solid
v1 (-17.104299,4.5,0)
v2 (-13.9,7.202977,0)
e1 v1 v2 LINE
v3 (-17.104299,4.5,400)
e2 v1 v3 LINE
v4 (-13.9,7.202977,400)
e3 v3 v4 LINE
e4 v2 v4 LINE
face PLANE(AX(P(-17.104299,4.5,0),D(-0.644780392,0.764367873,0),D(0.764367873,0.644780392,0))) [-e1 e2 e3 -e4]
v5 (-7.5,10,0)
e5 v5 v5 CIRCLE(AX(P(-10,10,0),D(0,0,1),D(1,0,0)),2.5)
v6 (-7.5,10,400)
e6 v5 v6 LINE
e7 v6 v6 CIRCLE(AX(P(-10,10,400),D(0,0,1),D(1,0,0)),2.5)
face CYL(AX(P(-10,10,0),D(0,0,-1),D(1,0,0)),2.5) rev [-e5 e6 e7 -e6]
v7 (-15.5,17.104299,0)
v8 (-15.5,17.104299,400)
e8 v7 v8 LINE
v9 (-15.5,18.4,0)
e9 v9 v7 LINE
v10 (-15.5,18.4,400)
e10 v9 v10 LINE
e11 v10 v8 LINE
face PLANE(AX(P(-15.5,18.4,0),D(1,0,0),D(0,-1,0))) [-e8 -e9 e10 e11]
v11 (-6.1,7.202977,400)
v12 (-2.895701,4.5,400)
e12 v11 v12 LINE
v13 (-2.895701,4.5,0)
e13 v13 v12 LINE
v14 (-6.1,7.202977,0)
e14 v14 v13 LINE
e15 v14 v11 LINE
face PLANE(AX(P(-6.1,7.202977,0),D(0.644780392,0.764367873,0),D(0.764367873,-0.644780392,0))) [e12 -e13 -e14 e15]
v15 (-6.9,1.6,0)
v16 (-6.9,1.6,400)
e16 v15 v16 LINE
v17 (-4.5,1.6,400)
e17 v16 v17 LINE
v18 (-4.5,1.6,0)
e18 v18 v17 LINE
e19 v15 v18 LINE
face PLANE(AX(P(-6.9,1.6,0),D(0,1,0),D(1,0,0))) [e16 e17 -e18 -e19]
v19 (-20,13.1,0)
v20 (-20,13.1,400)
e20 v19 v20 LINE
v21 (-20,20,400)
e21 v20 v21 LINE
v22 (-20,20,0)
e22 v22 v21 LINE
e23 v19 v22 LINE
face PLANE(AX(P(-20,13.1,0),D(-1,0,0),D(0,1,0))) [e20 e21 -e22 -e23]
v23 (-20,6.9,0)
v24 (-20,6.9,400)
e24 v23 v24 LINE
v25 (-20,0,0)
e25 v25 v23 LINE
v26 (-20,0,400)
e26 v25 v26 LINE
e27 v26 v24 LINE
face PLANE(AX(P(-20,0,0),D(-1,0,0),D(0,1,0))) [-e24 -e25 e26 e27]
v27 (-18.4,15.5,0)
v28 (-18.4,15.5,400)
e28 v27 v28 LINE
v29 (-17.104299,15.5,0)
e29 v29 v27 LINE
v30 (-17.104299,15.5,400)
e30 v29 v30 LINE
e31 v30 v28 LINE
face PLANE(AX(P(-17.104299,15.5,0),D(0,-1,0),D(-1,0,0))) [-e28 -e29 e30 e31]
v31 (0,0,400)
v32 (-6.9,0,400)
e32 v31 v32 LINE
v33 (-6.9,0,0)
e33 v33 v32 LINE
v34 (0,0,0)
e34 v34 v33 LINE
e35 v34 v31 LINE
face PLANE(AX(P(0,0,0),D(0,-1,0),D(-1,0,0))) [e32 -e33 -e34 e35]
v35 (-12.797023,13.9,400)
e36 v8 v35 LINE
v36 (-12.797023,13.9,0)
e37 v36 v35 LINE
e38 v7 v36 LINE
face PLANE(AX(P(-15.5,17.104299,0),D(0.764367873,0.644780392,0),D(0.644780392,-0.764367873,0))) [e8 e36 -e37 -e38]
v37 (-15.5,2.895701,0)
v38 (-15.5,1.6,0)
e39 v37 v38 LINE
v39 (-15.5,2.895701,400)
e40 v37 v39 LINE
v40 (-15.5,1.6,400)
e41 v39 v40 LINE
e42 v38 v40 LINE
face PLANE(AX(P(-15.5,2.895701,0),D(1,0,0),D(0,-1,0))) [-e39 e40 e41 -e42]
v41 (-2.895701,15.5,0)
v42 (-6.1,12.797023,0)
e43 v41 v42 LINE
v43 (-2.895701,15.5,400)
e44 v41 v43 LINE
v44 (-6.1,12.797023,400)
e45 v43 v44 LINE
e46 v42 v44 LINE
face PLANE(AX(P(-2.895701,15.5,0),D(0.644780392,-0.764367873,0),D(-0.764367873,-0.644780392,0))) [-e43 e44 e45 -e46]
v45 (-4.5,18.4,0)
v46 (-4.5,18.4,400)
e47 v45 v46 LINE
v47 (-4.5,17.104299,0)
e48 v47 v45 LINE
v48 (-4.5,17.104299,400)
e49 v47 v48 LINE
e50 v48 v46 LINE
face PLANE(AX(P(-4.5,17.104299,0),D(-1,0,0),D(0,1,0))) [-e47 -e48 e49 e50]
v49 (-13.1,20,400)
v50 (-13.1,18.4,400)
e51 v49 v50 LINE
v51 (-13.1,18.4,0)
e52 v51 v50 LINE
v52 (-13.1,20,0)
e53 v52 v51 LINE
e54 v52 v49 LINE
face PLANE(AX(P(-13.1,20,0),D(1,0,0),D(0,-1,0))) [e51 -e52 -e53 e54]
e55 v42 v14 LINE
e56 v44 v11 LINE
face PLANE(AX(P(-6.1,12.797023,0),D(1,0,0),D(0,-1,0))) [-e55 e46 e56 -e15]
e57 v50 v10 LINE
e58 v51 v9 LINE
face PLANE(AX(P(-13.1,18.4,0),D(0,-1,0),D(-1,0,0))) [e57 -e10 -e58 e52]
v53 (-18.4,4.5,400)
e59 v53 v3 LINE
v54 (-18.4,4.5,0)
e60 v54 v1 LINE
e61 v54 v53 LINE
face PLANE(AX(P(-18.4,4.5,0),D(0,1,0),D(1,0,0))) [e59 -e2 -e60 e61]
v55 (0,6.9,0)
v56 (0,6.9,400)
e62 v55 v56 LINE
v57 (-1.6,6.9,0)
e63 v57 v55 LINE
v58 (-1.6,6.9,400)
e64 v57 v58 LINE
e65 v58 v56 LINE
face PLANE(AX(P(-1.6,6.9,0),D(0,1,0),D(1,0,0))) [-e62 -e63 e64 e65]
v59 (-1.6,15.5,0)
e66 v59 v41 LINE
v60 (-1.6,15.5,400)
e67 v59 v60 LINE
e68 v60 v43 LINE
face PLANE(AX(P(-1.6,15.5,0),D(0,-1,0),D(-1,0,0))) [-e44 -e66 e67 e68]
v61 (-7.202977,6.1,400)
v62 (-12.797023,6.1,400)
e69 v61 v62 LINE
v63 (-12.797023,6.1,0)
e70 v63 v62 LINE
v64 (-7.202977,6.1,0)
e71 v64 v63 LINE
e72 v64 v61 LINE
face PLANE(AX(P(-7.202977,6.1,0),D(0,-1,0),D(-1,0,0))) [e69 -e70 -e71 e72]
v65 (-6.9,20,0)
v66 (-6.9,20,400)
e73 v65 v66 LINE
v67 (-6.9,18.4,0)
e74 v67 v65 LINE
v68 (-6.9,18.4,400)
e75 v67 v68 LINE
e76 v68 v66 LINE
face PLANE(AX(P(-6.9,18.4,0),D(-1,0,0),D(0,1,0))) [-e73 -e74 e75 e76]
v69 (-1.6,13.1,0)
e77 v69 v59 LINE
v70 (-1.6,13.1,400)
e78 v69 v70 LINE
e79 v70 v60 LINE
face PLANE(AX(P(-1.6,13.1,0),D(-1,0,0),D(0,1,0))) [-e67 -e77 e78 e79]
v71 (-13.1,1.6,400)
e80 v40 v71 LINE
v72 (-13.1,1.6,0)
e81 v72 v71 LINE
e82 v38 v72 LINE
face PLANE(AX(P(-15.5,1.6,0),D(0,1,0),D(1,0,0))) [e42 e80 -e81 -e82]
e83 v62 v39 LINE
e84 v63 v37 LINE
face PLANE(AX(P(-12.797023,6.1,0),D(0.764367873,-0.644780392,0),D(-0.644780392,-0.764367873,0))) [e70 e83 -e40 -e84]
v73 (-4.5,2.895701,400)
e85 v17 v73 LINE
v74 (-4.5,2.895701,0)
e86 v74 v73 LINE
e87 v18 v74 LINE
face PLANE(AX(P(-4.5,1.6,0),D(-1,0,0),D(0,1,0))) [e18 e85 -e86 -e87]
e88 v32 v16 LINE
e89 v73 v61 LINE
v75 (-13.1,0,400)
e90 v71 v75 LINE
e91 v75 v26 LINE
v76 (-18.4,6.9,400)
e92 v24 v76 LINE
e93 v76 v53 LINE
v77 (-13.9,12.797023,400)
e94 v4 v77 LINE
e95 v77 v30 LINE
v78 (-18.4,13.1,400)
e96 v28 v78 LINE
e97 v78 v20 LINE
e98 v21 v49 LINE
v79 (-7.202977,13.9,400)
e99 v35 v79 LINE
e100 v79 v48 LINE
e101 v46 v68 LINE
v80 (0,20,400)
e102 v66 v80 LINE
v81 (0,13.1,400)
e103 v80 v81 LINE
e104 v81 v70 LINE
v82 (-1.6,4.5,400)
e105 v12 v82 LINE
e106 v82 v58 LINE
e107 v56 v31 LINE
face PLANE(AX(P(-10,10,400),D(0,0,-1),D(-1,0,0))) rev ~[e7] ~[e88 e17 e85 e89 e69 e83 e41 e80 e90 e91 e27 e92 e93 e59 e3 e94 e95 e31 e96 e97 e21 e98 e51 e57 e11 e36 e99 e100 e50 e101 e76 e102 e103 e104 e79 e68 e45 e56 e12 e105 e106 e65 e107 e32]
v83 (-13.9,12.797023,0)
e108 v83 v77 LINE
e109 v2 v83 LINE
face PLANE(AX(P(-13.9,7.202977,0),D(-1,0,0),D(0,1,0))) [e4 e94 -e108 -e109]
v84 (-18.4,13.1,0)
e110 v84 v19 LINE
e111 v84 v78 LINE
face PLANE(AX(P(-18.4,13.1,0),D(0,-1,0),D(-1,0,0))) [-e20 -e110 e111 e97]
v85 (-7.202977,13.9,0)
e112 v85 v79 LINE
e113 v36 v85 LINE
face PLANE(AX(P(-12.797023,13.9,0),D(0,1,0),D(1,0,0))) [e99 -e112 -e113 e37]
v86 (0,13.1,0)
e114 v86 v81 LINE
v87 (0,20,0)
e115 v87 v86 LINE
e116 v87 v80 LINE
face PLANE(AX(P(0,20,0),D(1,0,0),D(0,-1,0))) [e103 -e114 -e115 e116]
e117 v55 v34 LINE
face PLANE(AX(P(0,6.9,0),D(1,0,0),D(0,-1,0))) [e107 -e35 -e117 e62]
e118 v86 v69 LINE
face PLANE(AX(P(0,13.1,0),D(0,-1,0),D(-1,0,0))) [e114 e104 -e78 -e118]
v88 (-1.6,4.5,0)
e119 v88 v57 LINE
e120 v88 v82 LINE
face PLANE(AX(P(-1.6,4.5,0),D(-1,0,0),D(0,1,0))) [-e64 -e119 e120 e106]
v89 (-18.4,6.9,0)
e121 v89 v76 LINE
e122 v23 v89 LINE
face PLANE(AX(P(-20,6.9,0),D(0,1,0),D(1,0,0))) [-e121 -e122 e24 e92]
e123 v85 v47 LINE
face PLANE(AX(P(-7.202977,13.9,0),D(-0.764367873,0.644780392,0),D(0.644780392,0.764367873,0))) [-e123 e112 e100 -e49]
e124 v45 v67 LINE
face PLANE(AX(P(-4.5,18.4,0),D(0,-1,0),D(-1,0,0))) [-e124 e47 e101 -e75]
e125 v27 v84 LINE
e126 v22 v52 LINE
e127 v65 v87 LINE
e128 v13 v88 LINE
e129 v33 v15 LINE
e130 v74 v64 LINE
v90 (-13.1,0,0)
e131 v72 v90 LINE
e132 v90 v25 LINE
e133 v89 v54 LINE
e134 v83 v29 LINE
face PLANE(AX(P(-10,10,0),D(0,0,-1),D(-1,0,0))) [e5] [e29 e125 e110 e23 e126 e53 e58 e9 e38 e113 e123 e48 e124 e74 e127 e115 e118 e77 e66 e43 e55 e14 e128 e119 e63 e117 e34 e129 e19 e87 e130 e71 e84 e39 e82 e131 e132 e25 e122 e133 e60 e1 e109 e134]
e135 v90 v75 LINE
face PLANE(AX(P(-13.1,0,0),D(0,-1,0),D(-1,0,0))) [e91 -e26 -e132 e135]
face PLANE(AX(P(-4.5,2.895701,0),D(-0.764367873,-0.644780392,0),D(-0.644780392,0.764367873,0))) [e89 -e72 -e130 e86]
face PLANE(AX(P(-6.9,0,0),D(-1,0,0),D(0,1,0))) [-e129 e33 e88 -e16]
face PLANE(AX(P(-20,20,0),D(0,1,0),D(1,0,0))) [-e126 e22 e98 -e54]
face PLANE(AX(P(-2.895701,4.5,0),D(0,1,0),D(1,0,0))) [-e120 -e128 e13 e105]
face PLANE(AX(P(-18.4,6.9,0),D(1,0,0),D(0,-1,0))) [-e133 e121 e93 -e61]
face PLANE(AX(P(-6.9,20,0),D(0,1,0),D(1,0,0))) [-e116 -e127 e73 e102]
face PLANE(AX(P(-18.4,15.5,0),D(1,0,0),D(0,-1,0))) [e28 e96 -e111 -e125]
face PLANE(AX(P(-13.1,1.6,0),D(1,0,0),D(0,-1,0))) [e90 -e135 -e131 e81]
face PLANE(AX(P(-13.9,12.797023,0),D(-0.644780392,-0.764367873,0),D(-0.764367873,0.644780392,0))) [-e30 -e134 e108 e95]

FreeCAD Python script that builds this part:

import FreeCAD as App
import Part
import Sketcher
Q = App.Units.Quantity


def add_polygon(sketch, points):
    """Adds a closed chain of lines whose ends are joined by coincident constraints."""
    first, n = sketch.GeometryCount, len(points)
    for a, b in zip(points, points[1:] + points[:1]):
        sketch.addGeometry(Part.LineSegment(App.Vector(*a, 0), App.Vector(*b, 0)), False)
    for i in range(n):
        sketch.addConstraint(Sketcher.Constraint("Coincident", first + i, 2, first + (i + 1) % n, 1))

doc = App.newDocument("Part")
params = doc.addObject("Spreadsheet::Sheet", "Params")
for row, (alias, value) in enumerate([
    ("sketch1_diameter", "5 mm"),
    ("sketch1_width", "6.9 mm"),
    ("sketch1_width2", "1.6 mm"),
    ("sketch1_width3", "2.4 mm"),
    ("pad1_length", "400 mm"),
], start=1):
    params.set(f"A{row}", alias)
    params.set(f"B{row}", "=" + value)
    params.setAlias(f"B{row}", alias)

body = doc.addObject("PartDesign::Body", "Body")

sketch1 = doc.addObject("Sketcher::SketchObject", "Sketch")
body.addObject(sketch1)
sketch1.AttachmentSupport = (doc.XY_Plane, [""])
sketch1.MapMode = "FlatFace"
add_polygon(sketch1, [(-13.1, 20), (-20, 20), (-20, 13.1), (-18.4, 13.1), (-18.4, 15.5), (-17.104299, 15.5), (-13.9, 12.797023), (-13.9, 7.202977), (-17.104299, 4.5), (-18.4, 4.5), (-18.4, 6.9), (-20, 6.9), (-20, 0), (-13.1, 0), (-13.1, 1.6), (-15.5, 1.6), (-15.5, 2.895701), (-12.797023, 6.1), (-7.202977, 6.1), (-4.5, 2.895701), (-4.5, 1.6), (-6.9, 1.6), (-6.9, 0), (0, 0), (0, 6.9), (-1.6, 6.9), (-1.6, 4.5), (-2.895701, 4.5), (-6.1, 7.202977), (-6.1, 12.797023), (-2.895701, 15.5), (-1.6, 15.5), (-1.6, 13.1), (0, 13.1), (0, 20), (-6.9, 20), (-6.9, 18.4), (-4.5, 18.4), (-4.5, 17.104299), (-7.202977, 13.9), (-12.797023, 13.9), (-15.5, 17.104299), (-15.5, 18.4), (-13.1, 18.4)])
sketch1.addGeometry(Part.Circle(App.Vector(-10, 10, 0), App.Vector(0, 0, 1), 2.5), False)
sketch1.addConstraint([
    Sketcher.Constraint("Horizontal", 0),
    Sketcher.Constraint("Vertical", 1),
    Sketcher.Constraint("Horizontal", 2),
    Sketcher.Constraint("Vertical", 3),
    Sketcher.Constraint("Horizontal", 4),
    Sketcher.Constraint("Vertical", 6),
    Sketcher.Constraint("Horizontal", 8),
    Sketcher.Constraint("Vertical", 9),
    Sketcher.Constraint("Horizontal", 10),
    Sketcher.Constraint("Vertical", 11),
    Sketcher.Constraint("Horizontal", 12),
    Sketcher.Constraint("Vertical", 13),
    Sketcher.Constraint("Horizontal", 14),
    Sketcher.Constraint("Vertical", 15),
    Sketcher.Constraint("Horizontal", 17),
    Sketcher.Constraint("Vertical", 19),
    Sketcher.Constraint("Horizontal", 20),
    Sketcher.Constraint("Vertical", 21),
    Sketcher.Constraint("Horizontal", 22),
    Sketcher.Constraint("Vertical", 23),
    Sketcher.Constraint("Horizontal", 24),
    Sketcher.Constraint("Vertical", 25),
    Sketcher.Constraint("Horizontal", 26),
    Sketcher.Constraint("Vertical", 28),
    Sketcher.Constraint("Horizontal", 30),
    Sketcher.Constraint("Vertical", 31),
    Sketcher.Constraint("Horizontal", 32),
    Sketcher.Constraint("Vertical", 33),
    Sketcher.Constraint("Horizontal", 34),
    Sketcher.Constraint("Vertical", 35),
    Sketcher.Constraint("Horizontal", 36),
    Sketcher.Constraint("Vertical", 37),
    Sketcher.Constraint("Horizontal", 39),
    Sketcher.Constraint("Vertical", 41),
    Sketcher.Constraint("Horizontal", 42),
    Sketcher.Constraint("Vertical", 43),
    Sketcher.Constraint("Coincident", 22, 2, -1, 1),
    Sketcher.Constraint("PointOnObject", 11, 2, -1),
    Sketcher.Constraint("PointOnObject", 32, 2, -2),
    Sketcher.Constraint("Perpendicular", 5, 16),
    Sketcher.Constraint("Perpendicular", 7, 18),
    Sketcher.Constraint("Perpendicular", 16, 27),
    Sketcher.Constraint("Perpendicular", 18, 29),
    Sketcher.Constraint("Perpendicular", 27, 38),
    Sketcher.Constraint("Perpendicular", 29, 40),
    Sketcher.Constraint("Horizontal", 15, 2, 18, 2),
    Sketcher.Constraint("Horizontal", 14, 2, 19, 2),
    Sketcher.Constraint("Horizontal", 10, 2, 23, 2),
    Sketcher.Constraint("Horizontal", 8, 2, 25, 2),
    Sketcher.Constraint("Horizontal", 6, 2, 27, 2),
    Sketcher.Constraint("Horizontal", 5, 2, 28, 2),
    Sketcher.Constraint("Horizontal", 4, 2, 29, 2),
    Sketcher.Constraint("Horizontal", 2, 2, 31, 2),
    Sketcher.Constraint("Horizontal", 0, 2, 33, 2),
    Sketcher.Constraint("Horizontal", 37, 2, 40, 2),
    Sketcher.Constraint("Horizontal", 36, 2, 41, 2),
    Sketcher.Constraint("Vertical", 4, 2, 7, 2),
    Sketcher.Constraint("Vertical", 3, 2, 8, 2),
    Sketcher.Constraint("Vertical", 1, 2, 10, 2),
    Sketcher.Constraint("Vertical", 26, 2, 29, 2),
    Sketcher.Constraint("Vertical", 25, 2, 30, 2),
    Sketcher.Constraint("Vertical", 21, 2, 34, 2),
    Sketcher.Constraint("Vertical", 19, 2, 36, 2),
    Sketcher.Constraint("Vertical", 17, 2, 38, 2),
    Sketcher.Constraint("Vertical", 16, 2, 39, 2),
    Sketcher.Constraint("Vertical", 13, 2, 42, 2),
    Sketcher.Constraint("Equal", 14, 20),
    Sketcher.Constraint("Equal", 12, 22),
    Sketcher.Constraint("Equal", 10, 24),
    Sketcher.Constraint("Equal", 8, 26),
    Sketcher.Constraint("Equal", 34, 1),
    Sketcher.Constraint("Equal", 42, 3),
    Sketcher.Constraint("Equal", 39, 6),
    Sketcher.Constraint("Equal", 3, 9),
    Sketcher.Constraint("Equal", 1, 11),
    Sketcher.Constraint("Equal", 32, 13),
    Sketcher.Constraint("Equal", 30, 15),
    Sketcher.Constraint("Equal", 21, 35),
    Sketcher.Constraint("Equal", 19, 37),
    Sketcher.Constraint("Equal", 7, 16),
    Sketcher.Constraint("Diameter", 44, Q("5 mm")),
    Sketcher.Constraint("DistanceX", 0, 2, 0, 1, Q("6.9 mm")),
    Sketcher.Constraint("DistanceX", 2, 1, 2, 2, Q("1.6 mm")),
    Sketcher.Constraint("DistanceX", 14, 2, 14, 1, Q("2.4 mm")),
    Sketcher.Constraint("DistanceX", 44, 3, -1, 1, Q("10 mm")),
    Sketcher.Constraint("DistanceY", -1, 1, 44, 3, Q("10 mm")),
    Sketcher.Constraint("DistanceX", 0, 2, -1, 1, Q("20 mm")),
    Sketcher.Constraint("DistanceX", 5, 2, -1, 1, Q("13.9 mm")),
    Sketcher.Constraint("DistanceX", 4, 1, 4, 2, Q("1.295701 mm")),
    Sketcher.Constraint("Distance", 5, Q("4.19209 mm")),
])
sketch1.setExpression("Constraints[124]", "Params.sketch1_diameter")
sketch1.setExpression("Constraints[125]", "Params.sketch1_width")
sketch1.setExpression("Constraints[126]", "Params.sketch1_width2")
sketch1.setExpression("Constraints[127]", "Params.sketch1_width3")
pad1 = doc.addObject("PartDesign::Pad", "Pad")
body.addObject(pad1)
pad1.Profile = sketch1
pad1.setExpression("Length", "Params.pad1_length")

doc.recompute()
